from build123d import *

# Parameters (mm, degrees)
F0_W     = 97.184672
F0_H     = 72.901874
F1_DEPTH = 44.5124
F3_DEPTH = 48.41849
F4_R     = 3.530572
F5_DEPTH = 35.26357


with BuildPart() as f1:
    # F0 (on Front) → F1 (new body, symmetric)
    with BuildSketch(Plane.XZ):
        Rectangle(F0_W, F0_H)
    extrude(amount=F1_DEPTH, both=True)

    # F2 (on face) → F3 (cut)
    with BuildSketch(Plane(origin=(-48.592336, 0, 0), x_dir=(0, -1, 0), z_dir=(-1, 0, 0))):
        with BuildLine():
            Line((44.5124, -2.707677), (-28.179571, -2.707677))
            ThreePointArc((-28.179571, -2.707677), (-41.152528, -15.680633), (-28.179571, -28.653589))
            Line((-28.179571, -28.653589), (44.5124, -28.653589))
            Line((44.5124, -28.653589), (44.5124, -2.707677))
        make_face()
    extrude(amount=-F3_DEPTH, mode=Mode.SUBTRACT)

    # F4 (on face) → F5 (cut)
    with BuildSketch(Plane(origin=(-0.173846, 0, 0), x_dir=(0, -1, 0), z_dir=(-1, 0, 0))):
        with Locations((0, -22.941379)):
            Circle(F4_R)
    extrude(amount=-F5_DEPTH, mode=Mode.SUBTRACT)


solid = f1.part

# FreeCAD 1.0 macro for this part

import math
import FreeCAD as App
import Part
import Sketcher

doc = App.newDocument("Part")
body = doc.addObject("PartDesign::Body", "Body")

# Sketch on XZ plane
sketch1 = body.newObject("Sketcher::SketchObject", "Sketch")
sketch1.AttachmentSupport = (doc.getObject("XZ_Plane"), [""])
sketch1.MapMode = "FlatFace"
sketch1.addGeometry([
    Part.LineSegment(App.Vector(-49, 36, 0), App.Vector(-49, -36, 0)),
    Part.LineSegment(App.Vector(-49, -36, 0), App.Vector(49, -36, 0)),
    Part.LineSegment(App.Vector(49, -36, 0), App.Vector(49, 36, 0)),
    Part.LineSegment(App.Vector(49, 36, 0), App.Vector(-49, 36, 0)),
], False)
sketch1.addConstraint([
    Sketcher.Constraint("Coincident", 0, 2, 1, 1),
    Sketcher.Constraint("Coincident", 1, 2, 2, 1),
    Sketcher.Constraint("Coincident", 2, 2, 3, 1),
    Sketcher.Constraint("Coincident", 3, 2, 0, 1),
    Sketcher.Constraint("Vertical", 0),
    Sketcher.Constraint("Horizontal", 1),
    Sketcher.Constraint("Vertical", 2),
    Sketcher.Constraint("Horizontal", 3),
    Sketcher.Constraint("Symmetric", 0, 2, 2, 2, -1, 1),
    Sketcher.Constraint("DistanceX", 1, 1, 1, 2, 97.184672),
    Sketcher.Constraint("DistanceY", 0, 2, 0, 1, 72.901874),
])
pad1 = body.newObject("PartDesign::Pad", "Pad")
pad1.Profile = sketch1
pad1.Length = 89.0248
pad1.Midplane = True

# Sketch on YZ plane
sketch2 = body.newObject("Sketcher::SketchObject", "Sketch001")
sketch2.AttachmentSupport = (doc.getObject("YZ_Plane"), [""])
sketch2.MapMode = "FlatFace"
sketch2.AttachmentOffset = App.Placement(App.Vector(0, 0, -48.592336), App.Rotation())
sketch2.addGeometry([
    Part.LineSegment(App.Vector(-45, -3, 0), App.Vector(28, -3, 0)),
    Part.ArcOfCircle(Part.Circle(App.Vector(28, -16, 0), App.Vector(0, 0, 1), 13), math.radians(-90), math.radians(90)),
    Part.LineSegment(App.Vector(28, -29, 0), App.Vector(-45, -29, 0)),
    Part.LineSegment(App.Vector(-45, -29, 0), App.Vector(-45, -3, 0)),
], False)
sketch2.addConstraint([
    Sketcher.Constraint("Tangent", 0, 2, 1, 2),
    Sketcher.Constraint("Tangent", 1, 1, 2, 1),
    Sketcher.Constraint("Coincident", 2, 2, 3, 1),
    Sketcher.Constraint("Coincident", 3, 2, 0, 1),
    Sketcher.Constraint("Horizontal", 0),
    Sketcher.Constraint("Horizontal", 2),
    Sketcher.Constraint("Vertical", 3),
    Sketcher.Constraint("Radius", 1, 12.972956),
    Sketcher.Constraint("DistanceX", 0, 1, 0, 2, 72.691971),
    Sketcher.Constraint("DistanceX", 2, 2, -1, 1, 44.5124),
    Sketcher.Constraint("DistanceY", 1, 1, -1, 1, 28.653589),
])
pocket1 = body.newObject("PartDesign::Pocket", "Pocket")
pocket1.Profile = sketch2
pocket1.Length = 48.41849
pocket1.Reversed = True

# Sketch on YZ plane
sketch3 = body.newObject("Sketcher::SketchObject", "Sketch002")
sketch3.AttachmentSupport = (doc.getObject("YZ_Plane"), [""])
sketch3.MapMode = "FlatFace"
sketch3.AttachmentOffset = App.Placement(App.Vector(0, 0, -0.173846), App.Rotation())
sketch3.addGeometry(Part.Circle(App.Vector(0, -22.9, 0), App.Vector(0, 0, 1), 3.5), False)
sketch3.addConstraint([
    Sketcher.Constraint("PointOnObject", 0, 3, -2),
    Sketcher.Constraint("Diameter", 0, 7.061144),
    Sketcher.Constraint("DistanceY", 0, 3, -1, 1, 22.941379),
])
pocket2 = body.newObject("PartDesign::Pocket", "Pocket001")
pocket2.Profile = sketch3
pocket2.Length = 35.26357
pocket2.Reversed = True

doc.recompute()
